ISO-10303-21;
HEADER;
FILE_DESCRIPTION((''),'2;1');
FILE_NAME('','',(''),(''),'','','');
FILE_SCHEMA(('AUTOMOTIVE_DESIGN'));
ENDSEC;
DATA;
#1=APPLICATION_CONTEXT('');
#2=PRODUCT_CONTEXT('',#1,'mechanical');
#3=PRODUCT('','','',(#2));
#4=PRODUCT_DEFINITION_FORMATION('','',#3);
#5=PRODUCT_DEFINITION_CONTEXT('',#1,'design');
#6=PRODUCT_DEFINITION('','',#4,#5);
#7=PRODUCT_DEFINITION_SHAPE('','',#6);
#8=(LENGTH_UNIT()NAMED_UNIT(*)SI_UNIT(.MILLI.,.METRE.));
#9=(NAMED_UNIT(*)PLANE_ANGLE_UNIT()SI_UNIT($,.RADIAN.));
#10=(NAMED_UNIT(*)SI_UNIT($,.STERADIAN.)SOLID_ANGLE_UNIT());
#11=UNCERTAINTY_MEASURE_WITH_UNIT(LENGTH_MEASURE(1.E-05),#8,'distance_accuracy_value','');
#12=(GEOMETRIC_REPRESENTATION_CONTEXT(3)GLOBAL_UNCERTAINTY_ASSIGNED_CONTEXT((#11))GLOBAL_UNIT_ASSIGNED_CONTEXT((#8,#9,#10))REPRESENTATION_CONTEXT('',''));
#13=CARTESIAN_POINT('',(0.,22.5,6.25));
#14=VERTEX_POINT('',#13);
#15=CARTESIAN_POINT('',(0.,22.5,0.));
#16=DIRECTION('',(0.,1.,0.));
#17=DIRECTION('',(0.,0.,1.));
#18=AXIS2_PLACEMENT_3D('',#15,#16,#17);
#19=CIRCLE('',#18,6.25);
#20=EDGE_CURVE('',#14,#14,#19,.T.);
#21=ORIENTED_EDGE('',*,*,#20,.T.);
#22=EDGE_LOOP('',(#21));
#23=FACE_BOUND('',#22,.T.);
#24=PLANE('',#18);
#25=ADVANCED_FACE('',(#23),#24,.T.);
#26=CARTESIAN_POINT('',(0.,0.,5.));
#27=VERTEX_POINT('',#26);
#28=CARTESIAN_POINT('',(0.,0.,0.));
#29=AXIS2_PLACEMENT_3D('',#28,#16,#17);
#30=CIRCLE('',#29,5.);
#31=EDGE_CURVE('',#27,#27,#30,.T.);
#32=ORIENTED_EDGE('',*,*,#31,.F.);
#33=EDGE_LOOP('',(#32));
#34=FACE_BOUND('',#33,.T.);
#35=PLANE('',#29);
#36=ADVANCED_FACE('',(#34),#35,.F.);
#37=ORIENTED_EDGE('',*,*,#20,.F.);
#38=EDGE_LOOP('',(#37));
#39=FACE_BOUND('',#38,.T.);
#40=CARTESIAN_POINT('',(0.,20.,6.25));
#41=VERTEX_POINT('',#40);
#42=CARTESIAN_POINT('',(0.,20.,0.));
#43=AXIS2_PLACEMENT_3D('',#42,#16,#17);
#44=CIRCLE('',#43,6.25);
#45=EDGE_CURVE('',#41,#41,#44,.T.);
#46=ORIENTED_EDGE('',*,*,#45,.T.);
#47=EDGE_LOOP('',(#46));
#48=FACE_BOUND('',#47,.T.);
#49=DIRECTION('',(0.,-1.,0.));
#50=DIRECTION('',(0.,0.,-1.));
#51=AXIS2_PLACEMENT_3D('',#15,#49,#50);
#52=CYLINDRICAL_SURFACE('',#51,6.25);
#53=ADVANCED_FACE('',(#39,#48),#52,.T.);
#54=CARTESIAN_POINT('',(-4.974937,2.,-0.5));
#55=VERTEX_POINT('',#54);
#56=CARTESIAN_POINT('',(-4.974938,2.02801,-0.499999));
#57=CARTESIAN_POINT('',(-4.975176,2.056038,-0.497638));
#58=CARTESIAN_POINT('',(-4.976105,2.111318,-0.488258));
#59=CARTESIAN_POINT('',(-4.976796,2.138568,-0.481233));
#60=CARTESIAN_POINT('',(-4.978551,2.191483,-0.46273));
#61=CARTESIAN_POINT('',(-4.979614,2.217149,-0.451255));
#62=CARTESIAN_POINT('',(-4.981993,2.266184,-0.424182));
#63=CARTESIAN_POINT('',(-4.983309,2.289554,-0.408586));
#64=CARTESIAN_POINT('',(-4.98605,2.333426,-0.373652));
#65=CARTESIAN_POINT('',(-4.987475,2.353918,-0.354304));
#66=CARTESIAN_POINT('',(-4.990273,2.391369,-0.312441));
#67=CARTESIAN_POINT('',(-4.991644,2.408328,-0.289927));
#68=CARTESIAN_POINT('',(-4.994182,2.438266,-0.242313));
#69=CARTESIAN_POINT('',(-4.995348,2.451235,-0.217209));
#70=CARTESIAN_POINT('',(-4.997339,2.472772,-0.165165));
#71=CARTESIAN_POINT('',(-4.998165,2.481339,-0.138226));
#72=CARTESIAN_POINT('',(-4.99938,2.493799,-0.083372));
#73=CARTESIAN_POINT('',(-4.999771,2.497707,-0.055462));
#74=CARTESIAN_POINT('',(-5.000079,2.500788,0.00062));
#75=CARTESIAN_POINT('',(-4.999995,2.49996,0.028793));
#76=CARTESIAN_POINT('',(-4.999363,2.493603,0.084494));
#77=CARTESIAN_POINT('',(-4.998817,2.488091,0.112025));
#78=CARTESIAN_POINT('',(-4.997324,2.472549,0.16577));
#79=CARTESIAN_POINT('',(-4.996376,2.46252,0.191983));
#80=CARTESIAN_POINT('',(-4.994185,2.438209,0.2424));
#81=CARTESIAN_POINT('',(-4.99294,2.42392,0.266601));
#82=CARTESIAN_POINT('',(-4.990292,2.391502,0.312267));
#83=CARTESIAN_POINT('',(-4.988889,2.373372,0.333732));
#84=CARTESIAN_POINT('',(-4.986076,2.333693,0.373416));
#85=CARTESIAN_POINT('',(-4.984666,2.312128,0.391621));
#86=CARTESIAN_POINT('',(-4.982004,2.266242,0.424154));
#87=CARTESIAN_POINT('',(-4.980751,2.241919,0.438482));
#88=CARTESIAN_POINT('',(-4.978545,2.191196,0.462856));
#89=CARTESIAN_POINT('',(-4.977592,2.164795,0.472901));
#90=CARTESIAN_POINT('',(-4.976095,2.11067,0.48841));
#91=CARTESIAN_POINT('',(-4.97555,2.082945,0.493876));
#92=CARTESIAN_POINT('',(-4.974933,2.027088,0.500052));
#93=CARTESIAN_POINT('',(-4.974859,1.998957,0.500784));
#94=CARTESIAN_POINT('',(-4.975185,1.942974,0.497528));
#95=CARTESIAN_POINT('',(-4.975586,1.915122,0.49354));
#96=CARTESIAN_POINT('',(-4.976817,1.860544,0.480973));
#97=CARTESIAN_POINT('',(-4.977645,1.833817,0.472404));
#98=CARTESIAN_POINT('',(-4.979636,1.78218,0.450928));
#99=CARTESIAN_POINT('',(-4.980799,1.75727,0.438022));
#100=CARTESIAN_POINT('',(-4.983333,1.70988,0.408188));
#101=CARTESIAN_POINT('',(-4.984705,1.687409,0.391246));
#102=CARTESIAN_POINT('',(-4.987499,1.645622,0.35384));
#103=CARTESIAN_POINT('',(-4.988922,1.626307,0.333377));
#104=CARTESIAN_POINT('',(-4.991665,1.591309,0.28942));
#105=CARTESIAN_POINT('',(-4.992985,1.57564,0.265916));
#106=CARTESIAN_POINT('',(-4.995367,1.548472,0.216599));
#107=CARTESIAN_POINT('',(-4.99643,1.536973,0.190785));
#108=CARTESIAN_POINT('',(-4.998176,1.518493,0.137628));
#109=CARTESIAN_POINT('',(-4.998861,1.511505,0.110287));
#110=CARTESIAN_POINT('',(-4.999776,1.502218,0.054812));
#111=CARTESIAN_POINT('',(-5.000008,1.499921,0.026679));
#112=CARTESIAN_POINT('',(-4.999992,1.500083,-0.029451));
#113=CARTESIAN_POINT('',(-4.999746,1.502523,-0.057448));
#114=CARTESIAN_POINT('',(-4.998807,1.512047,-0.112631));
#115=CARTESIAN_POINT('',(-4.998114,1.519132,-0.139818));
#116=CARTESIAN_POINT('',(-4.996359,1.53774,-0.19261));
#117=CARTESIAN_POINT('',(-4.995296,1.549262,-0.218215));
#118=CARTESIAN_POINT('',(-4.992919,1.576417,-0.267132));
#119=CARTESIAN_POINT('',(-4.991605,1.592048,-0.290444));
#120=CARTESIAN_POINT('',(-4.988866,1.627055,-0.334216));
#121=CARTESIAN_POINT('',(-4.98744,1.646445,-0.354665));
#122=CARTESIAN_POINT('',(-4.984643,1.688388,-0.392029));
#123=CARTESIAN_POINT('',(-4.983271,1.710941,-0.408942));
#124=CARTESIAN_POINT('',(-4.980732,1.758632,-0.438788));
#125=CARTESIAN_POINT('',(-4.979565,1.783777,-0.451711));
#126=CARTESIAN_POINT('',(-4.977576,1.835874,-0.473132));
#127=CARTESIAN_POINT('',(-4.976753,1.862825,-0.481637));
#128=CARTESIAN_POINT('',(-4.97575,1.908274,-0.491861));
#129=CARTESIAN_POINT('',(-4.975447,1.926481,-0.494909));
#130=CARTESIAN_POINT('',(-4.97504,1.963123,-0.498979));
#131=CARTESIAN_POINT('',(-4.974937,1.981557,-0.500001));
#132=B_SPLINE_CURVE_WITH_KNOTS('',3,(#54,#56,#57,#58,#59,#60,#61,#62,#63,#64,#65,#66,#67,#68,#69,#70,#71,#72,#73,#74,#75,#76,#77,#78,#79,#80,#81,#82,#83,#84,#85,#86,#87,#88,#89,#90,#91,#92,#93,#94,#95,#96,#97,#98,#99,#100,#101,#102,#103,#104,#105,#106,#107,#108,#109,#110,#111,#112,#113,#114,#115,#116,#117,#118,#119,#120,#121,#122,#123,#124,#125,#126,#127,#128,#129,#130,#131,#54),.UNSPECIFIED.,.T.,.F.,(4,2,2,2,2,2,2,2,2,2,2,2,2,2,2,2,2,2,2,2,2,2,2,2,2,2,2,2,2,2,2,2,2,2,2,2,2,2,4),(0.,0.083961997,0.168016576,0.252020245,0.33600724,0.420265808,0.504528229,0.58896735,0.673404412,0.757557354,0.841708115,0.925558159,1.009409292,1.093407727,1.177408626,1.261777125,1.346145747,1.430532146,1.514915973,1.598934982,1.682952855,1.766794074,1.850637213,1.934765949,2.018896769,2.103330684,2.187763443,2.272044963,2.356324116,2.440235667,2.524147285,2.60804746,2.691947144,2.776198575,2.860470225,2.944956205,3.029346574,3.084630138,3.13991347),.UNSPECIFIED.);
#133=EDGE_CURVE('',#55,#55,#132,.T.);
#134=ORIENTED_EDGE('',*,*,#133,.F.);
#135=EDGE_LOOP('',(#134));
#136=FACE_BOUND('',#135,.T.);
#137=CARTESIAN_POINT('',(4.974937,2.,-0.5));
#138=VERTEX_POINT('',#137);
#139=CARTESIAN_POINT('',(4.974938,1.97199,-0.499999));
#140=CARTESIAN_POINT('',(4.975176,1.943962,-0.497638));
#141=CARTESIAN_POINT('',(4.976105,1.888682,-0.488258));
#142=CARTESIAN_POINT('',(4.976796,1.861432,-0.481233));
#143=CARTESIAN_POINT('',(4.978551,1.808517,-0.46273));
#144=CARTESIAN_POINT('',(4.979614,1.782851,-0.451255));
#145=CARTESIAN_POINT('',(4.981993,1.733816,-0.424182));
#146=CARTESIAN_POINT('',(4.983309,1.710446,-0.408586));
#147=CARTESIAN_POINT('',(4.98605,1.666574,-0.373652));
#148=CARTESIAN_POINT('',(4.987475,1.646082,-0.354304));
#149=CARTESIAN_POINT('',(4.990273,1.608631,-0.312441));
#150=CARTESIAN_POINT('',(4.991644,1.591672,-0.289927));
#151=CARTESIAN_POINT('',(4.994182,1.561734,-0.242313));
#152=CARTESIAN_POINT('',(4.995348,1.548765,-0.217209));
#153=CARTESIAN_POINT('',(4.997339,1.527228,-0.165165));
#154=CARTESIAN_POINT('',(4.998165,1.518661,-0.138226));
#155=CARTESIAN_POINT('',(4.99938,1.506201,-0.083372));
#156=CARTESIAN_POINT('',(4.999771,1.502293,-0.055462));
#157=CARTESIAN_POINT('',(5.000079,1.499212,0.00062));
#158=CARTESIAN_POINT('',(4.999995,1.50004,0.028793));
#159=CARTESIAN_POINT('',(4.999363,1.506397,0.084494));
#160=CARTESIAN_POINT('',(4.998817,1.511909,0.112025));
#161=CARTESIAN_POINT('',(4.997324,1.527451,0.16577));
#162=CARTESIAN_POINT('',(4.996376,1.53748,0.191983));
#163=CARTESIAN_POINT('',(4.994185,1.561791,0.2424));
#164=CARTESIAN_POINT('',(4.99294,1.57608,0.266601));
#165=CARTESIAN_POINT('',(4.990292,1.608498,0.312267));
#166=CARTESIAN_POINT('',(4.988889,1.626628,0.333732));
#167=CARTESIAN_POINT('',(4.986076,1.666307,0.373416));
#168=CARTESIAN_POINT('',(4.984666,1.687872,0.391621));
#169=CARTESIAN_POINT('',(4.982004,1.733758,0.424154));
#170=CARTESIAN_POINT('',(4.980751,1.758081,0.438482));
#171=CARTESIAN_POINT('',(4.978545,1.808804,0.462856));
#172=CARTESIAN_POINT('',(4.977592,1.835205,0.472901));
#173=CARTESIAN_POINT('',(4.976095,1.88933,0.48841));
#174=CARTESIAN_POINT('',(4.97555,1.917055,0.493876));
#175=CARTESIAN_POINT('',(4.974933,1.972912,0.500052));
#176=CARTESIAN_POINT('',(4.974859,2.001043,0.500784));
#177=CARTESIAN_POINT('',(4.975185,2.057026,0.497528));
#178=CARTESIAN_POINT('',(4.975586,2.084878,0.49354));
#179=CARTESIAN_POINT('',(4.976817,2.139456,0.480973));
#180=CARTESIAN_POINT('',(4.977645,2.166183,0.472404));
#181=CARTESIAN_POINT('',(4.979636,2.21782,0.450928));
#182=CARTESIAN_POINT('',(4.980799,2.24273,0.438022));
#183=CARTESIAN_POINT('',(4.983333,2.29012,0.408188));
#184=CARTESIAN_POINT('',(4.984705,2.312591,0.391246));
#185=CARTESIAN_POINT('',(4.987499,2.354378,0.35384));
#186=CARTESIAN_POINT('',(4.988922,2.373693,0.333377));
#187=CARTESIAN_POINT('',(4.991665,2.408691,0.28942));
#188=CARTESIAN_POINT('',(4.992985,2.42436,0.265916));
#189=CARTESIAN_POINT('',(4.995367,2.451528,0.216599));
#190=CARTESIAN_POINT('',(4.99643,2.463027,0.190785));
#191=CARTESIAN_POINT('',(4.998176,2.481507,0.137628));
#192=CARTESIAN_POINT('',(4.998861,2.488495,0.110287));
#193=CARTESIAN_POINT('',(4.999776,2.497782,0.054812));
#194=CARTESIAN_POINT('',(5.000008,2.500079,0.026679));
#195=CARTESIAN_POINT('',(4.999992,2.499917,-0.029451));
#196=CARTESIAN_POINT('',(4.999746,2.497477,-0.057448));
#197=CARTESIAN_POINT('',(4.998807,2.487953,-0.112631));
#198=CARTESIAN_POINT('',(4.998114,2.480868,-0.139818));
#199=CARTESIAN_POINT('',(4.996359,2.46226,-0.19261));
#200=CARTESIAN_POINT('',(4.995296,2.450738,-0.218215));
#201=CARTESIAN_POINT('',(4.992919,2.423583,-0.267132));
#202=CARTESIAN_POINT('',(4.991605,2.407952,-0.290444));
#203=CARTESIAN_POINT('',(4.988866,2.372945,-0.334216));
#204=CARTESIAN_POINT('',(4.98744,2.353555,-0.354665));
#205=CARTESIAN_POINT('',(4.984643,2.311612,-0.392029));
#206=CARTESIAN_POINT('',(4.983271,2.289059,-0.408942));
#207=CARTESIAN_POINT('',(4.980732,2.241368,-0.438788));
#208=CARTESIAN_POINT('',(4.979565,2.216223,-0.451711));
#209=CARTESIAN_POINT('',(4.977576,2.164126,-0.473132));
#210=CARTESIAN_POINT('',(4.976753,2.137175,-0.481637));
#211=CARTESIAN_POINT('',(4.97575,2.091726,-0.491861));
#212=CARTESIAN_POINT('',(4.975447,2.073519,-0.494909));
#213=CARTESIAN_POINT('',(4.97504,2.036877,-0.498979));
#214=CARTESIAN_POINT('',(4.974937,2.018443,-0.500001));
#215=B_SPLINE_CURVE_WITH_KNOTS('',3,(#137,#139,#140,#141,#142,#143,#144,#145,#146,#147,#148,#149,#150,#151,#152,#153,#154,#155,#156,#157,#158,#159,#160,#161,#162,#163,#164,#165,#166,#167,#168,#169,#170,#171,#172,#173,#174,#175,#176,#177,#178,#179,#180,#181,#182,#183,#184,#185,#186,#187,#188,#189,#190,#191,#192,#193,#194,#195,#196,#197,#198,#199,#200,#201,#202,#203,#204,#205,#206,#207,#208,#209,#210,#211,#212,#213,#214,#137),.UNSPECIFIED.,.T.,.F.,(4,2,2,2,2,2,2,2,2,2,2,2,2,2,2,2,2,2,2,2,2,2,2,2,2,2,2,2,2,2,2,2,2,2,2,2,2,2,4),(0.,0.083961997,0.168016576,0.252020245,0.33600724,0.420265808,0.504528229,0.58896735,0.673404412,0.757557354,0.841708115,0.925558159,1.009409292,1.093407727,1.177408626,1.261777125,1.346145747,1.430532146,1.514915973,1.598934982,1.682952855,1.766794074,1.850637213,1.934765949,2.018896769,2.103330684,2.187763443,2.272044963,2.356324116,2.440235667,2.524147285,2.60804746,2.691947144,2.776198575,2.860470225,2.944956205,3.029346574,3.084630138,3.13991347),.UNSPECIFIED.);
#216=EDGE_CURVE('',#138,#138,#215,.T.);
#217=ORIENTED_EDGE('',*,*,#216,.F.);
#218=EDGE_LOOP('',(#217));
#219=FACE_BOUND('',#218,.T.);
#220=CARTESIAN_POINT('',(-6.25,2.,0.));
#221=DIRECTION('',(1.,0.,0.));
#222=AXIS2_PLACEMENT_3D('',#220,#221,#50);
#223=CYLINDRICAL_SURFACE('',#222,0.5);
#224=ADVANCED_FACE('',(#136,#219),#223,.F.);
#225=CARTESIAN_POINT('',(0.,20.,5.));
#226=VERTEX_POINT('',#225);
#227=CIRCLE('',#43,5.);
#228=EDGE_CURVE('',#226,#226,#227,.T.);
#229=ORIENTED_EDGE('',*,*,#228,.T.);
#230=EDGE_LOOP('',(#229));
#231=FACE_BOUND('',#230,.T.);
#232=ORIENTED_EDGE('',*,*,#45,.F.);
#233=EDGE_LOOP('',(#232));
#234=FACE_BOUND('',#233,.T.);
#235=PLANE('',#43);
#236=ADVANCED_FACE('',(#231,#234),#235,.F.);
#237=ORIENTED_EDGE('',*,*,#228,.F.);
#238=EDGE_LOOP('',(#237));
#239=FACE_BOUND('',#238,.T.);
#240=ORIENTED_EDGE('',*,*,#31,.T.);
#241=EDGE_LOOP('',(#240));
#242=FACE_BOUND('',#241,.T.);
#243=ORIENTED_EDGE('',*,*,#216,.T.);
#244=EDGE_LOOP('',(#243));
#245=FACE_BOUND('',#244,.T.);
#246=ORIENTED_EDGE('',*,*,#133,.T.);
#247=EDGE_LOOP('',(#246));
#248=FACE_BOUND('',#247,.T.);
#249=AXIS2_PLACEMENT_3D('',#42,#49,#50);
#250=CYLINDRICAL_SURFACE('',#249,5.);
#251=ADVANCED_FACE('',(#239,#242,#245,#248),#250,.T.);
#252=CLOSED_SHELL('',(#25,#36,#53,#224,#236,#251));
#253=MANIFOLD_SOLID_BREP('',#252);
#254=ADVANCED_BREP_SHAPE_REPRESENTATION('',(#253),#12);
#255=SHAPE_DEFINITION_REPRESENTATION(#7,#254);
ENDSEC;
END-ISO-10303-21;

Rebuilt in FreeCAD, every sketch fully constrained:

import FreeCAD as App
import Part
import Sketcher

V = App.Vector
Q = App.Units.Quantity

doc = App.newDocument("Part")
body = doc.addObject("PartDesign::Body", "Body")

# Sketch on XZ plane
sketch1 = body.newObject("Sketcher::SketchObject", "Sketch")
sketch1.AttachmentSupport = (doc.getObject("XZ_Plane"), [""])
sketch1.MapMode = "FlatFace"
sketch1.addGeometry(Part.Circle(V(0, 0, 0), V(0, 0, 1), 5), False)
sketch1.addConstraint(Sketcher.Constraint("Coincident", 0, 3, -1, 1))
sketch1.addConstraint(Sketcher.Constraint("Diameter", 0, Q("10 mm")))
pad1 = body.newObject("PartDesign::Pad", "Pad")
pad1.Profile = sketch1
pad1.Length = 20
pad1.Reversed = True

# Sketch on XZ plane
sketch2 = body.newObject("Sketcher::SketchObject", "Sketch001")
sketch2.AttachmentSupport = (doc.getObject("XZ_Plane"), [""])
sketch2.MapMode = "FlatFace"
sketch2.AttachmentOffset = App.Placement(V(0, 0, -20), App.Rotation())
sketch2.addGeometry(Part.Circle(V(0, 0, 0), V(0, 0, 1), 6), False)
sketch2.addConstraint(Sketcher.Constraint("Coincident", 0, 3, -1, 1))
sketch2.addConstraint(Sketcher.Constraint("Diameter", 0, Q("12.5 mm")))
pad2 = body.newObject("PartDesign::Pad", "Pad001")
pad2.Profile = sketch2
pad2.Length = 2.5
pad2.Reversed = True

# Sketch on YZ plane
sketch3 = body.newObject("Sketcher::SketchObject", "Sketch002")
sketch3.AttachmentSupport = (doc.getObject("YZ_Plane"), [""])
sketch3.MapMode = "FlatFace"
sketch3.addGeometry(Part.Circle(V(2, 0, 0), V(0, 0, 1), 0.5), False)
sketch3.addConstraint(Sketcher.Constraint("PointOnObject", 0, 3, -1))
sketch3.addConstraint(Sketcher.Constraint("Diameter", 0, Q("1 mm")))
sketch3.addConstraint(Sketcher.Constraint("DistanceX", -1, 1, 0, 3, Q("2 mm")))
pocket1 = body.newObject("PartDesign::Pocket", "Pocket")
pocket1.Profile = sketch3
pocket1.Type = "ThroughAll"
pocket1.Midplane = True

doc.recompute()
